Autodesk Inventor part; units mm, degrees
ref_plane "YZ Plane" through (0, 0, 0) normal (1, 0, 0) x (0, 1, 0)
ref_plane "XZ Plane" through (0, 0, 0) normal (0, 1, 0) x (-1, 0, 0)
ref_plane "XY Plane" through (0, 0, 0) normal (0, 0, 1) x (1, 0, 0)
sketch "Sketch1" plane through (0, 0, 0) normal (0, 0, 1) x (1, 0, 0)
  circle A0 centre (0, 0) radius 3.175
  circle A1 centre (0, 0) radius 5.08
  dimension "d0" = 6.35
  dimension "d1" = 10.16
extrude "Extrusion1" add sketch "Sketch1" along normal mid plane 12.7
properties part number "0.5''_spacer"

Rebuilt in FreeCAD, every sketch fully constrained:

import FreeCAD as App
import Part
import Sketcher

V = App.Vector
Q = App.Units.Quantity

doc = App.newDocument("Part")
body = doc.addObject("PartDesign::Body", "Body")

# Sketch on XY plane
sketch1 = body.newObject("Sketcher::SketchObject", "Sketch")
sketch1.AttachmentSupport = (doc.getObject("XY_Plane"), [""])
sketch1.MapMode = "FlatFace"
sketch1.addGeometry(Part.Circle(V(0, 0, 0), V(0, 0, 1), 5.1), False)
sketch1.addGeometry(Part.Circle(V(0, 0, 0), V(0, 0, 1), 3.2), False)
sketch1.addConstraint(Sketcher.Constraint("Coincident", 0, 3, -1, 1))
sketch1.addConstraint(Sketcher.Constraint("Coincident", 1, 3, -1, 1))
sketch1.addConstraint(Sketcher.Constraint("Diameter", 0, Q("0.4 in")))
sketch1.addConstraint(Sketcher.Constraint("Diameter", 1, Q("0.25 in")))
pad1 = body.newObject("PartDesign::Pad", "Pad")
pad1.Profile = sketch1
pad1.Length = Q("0.5 in")
pad1.Midplane = True

doc.recompute()
